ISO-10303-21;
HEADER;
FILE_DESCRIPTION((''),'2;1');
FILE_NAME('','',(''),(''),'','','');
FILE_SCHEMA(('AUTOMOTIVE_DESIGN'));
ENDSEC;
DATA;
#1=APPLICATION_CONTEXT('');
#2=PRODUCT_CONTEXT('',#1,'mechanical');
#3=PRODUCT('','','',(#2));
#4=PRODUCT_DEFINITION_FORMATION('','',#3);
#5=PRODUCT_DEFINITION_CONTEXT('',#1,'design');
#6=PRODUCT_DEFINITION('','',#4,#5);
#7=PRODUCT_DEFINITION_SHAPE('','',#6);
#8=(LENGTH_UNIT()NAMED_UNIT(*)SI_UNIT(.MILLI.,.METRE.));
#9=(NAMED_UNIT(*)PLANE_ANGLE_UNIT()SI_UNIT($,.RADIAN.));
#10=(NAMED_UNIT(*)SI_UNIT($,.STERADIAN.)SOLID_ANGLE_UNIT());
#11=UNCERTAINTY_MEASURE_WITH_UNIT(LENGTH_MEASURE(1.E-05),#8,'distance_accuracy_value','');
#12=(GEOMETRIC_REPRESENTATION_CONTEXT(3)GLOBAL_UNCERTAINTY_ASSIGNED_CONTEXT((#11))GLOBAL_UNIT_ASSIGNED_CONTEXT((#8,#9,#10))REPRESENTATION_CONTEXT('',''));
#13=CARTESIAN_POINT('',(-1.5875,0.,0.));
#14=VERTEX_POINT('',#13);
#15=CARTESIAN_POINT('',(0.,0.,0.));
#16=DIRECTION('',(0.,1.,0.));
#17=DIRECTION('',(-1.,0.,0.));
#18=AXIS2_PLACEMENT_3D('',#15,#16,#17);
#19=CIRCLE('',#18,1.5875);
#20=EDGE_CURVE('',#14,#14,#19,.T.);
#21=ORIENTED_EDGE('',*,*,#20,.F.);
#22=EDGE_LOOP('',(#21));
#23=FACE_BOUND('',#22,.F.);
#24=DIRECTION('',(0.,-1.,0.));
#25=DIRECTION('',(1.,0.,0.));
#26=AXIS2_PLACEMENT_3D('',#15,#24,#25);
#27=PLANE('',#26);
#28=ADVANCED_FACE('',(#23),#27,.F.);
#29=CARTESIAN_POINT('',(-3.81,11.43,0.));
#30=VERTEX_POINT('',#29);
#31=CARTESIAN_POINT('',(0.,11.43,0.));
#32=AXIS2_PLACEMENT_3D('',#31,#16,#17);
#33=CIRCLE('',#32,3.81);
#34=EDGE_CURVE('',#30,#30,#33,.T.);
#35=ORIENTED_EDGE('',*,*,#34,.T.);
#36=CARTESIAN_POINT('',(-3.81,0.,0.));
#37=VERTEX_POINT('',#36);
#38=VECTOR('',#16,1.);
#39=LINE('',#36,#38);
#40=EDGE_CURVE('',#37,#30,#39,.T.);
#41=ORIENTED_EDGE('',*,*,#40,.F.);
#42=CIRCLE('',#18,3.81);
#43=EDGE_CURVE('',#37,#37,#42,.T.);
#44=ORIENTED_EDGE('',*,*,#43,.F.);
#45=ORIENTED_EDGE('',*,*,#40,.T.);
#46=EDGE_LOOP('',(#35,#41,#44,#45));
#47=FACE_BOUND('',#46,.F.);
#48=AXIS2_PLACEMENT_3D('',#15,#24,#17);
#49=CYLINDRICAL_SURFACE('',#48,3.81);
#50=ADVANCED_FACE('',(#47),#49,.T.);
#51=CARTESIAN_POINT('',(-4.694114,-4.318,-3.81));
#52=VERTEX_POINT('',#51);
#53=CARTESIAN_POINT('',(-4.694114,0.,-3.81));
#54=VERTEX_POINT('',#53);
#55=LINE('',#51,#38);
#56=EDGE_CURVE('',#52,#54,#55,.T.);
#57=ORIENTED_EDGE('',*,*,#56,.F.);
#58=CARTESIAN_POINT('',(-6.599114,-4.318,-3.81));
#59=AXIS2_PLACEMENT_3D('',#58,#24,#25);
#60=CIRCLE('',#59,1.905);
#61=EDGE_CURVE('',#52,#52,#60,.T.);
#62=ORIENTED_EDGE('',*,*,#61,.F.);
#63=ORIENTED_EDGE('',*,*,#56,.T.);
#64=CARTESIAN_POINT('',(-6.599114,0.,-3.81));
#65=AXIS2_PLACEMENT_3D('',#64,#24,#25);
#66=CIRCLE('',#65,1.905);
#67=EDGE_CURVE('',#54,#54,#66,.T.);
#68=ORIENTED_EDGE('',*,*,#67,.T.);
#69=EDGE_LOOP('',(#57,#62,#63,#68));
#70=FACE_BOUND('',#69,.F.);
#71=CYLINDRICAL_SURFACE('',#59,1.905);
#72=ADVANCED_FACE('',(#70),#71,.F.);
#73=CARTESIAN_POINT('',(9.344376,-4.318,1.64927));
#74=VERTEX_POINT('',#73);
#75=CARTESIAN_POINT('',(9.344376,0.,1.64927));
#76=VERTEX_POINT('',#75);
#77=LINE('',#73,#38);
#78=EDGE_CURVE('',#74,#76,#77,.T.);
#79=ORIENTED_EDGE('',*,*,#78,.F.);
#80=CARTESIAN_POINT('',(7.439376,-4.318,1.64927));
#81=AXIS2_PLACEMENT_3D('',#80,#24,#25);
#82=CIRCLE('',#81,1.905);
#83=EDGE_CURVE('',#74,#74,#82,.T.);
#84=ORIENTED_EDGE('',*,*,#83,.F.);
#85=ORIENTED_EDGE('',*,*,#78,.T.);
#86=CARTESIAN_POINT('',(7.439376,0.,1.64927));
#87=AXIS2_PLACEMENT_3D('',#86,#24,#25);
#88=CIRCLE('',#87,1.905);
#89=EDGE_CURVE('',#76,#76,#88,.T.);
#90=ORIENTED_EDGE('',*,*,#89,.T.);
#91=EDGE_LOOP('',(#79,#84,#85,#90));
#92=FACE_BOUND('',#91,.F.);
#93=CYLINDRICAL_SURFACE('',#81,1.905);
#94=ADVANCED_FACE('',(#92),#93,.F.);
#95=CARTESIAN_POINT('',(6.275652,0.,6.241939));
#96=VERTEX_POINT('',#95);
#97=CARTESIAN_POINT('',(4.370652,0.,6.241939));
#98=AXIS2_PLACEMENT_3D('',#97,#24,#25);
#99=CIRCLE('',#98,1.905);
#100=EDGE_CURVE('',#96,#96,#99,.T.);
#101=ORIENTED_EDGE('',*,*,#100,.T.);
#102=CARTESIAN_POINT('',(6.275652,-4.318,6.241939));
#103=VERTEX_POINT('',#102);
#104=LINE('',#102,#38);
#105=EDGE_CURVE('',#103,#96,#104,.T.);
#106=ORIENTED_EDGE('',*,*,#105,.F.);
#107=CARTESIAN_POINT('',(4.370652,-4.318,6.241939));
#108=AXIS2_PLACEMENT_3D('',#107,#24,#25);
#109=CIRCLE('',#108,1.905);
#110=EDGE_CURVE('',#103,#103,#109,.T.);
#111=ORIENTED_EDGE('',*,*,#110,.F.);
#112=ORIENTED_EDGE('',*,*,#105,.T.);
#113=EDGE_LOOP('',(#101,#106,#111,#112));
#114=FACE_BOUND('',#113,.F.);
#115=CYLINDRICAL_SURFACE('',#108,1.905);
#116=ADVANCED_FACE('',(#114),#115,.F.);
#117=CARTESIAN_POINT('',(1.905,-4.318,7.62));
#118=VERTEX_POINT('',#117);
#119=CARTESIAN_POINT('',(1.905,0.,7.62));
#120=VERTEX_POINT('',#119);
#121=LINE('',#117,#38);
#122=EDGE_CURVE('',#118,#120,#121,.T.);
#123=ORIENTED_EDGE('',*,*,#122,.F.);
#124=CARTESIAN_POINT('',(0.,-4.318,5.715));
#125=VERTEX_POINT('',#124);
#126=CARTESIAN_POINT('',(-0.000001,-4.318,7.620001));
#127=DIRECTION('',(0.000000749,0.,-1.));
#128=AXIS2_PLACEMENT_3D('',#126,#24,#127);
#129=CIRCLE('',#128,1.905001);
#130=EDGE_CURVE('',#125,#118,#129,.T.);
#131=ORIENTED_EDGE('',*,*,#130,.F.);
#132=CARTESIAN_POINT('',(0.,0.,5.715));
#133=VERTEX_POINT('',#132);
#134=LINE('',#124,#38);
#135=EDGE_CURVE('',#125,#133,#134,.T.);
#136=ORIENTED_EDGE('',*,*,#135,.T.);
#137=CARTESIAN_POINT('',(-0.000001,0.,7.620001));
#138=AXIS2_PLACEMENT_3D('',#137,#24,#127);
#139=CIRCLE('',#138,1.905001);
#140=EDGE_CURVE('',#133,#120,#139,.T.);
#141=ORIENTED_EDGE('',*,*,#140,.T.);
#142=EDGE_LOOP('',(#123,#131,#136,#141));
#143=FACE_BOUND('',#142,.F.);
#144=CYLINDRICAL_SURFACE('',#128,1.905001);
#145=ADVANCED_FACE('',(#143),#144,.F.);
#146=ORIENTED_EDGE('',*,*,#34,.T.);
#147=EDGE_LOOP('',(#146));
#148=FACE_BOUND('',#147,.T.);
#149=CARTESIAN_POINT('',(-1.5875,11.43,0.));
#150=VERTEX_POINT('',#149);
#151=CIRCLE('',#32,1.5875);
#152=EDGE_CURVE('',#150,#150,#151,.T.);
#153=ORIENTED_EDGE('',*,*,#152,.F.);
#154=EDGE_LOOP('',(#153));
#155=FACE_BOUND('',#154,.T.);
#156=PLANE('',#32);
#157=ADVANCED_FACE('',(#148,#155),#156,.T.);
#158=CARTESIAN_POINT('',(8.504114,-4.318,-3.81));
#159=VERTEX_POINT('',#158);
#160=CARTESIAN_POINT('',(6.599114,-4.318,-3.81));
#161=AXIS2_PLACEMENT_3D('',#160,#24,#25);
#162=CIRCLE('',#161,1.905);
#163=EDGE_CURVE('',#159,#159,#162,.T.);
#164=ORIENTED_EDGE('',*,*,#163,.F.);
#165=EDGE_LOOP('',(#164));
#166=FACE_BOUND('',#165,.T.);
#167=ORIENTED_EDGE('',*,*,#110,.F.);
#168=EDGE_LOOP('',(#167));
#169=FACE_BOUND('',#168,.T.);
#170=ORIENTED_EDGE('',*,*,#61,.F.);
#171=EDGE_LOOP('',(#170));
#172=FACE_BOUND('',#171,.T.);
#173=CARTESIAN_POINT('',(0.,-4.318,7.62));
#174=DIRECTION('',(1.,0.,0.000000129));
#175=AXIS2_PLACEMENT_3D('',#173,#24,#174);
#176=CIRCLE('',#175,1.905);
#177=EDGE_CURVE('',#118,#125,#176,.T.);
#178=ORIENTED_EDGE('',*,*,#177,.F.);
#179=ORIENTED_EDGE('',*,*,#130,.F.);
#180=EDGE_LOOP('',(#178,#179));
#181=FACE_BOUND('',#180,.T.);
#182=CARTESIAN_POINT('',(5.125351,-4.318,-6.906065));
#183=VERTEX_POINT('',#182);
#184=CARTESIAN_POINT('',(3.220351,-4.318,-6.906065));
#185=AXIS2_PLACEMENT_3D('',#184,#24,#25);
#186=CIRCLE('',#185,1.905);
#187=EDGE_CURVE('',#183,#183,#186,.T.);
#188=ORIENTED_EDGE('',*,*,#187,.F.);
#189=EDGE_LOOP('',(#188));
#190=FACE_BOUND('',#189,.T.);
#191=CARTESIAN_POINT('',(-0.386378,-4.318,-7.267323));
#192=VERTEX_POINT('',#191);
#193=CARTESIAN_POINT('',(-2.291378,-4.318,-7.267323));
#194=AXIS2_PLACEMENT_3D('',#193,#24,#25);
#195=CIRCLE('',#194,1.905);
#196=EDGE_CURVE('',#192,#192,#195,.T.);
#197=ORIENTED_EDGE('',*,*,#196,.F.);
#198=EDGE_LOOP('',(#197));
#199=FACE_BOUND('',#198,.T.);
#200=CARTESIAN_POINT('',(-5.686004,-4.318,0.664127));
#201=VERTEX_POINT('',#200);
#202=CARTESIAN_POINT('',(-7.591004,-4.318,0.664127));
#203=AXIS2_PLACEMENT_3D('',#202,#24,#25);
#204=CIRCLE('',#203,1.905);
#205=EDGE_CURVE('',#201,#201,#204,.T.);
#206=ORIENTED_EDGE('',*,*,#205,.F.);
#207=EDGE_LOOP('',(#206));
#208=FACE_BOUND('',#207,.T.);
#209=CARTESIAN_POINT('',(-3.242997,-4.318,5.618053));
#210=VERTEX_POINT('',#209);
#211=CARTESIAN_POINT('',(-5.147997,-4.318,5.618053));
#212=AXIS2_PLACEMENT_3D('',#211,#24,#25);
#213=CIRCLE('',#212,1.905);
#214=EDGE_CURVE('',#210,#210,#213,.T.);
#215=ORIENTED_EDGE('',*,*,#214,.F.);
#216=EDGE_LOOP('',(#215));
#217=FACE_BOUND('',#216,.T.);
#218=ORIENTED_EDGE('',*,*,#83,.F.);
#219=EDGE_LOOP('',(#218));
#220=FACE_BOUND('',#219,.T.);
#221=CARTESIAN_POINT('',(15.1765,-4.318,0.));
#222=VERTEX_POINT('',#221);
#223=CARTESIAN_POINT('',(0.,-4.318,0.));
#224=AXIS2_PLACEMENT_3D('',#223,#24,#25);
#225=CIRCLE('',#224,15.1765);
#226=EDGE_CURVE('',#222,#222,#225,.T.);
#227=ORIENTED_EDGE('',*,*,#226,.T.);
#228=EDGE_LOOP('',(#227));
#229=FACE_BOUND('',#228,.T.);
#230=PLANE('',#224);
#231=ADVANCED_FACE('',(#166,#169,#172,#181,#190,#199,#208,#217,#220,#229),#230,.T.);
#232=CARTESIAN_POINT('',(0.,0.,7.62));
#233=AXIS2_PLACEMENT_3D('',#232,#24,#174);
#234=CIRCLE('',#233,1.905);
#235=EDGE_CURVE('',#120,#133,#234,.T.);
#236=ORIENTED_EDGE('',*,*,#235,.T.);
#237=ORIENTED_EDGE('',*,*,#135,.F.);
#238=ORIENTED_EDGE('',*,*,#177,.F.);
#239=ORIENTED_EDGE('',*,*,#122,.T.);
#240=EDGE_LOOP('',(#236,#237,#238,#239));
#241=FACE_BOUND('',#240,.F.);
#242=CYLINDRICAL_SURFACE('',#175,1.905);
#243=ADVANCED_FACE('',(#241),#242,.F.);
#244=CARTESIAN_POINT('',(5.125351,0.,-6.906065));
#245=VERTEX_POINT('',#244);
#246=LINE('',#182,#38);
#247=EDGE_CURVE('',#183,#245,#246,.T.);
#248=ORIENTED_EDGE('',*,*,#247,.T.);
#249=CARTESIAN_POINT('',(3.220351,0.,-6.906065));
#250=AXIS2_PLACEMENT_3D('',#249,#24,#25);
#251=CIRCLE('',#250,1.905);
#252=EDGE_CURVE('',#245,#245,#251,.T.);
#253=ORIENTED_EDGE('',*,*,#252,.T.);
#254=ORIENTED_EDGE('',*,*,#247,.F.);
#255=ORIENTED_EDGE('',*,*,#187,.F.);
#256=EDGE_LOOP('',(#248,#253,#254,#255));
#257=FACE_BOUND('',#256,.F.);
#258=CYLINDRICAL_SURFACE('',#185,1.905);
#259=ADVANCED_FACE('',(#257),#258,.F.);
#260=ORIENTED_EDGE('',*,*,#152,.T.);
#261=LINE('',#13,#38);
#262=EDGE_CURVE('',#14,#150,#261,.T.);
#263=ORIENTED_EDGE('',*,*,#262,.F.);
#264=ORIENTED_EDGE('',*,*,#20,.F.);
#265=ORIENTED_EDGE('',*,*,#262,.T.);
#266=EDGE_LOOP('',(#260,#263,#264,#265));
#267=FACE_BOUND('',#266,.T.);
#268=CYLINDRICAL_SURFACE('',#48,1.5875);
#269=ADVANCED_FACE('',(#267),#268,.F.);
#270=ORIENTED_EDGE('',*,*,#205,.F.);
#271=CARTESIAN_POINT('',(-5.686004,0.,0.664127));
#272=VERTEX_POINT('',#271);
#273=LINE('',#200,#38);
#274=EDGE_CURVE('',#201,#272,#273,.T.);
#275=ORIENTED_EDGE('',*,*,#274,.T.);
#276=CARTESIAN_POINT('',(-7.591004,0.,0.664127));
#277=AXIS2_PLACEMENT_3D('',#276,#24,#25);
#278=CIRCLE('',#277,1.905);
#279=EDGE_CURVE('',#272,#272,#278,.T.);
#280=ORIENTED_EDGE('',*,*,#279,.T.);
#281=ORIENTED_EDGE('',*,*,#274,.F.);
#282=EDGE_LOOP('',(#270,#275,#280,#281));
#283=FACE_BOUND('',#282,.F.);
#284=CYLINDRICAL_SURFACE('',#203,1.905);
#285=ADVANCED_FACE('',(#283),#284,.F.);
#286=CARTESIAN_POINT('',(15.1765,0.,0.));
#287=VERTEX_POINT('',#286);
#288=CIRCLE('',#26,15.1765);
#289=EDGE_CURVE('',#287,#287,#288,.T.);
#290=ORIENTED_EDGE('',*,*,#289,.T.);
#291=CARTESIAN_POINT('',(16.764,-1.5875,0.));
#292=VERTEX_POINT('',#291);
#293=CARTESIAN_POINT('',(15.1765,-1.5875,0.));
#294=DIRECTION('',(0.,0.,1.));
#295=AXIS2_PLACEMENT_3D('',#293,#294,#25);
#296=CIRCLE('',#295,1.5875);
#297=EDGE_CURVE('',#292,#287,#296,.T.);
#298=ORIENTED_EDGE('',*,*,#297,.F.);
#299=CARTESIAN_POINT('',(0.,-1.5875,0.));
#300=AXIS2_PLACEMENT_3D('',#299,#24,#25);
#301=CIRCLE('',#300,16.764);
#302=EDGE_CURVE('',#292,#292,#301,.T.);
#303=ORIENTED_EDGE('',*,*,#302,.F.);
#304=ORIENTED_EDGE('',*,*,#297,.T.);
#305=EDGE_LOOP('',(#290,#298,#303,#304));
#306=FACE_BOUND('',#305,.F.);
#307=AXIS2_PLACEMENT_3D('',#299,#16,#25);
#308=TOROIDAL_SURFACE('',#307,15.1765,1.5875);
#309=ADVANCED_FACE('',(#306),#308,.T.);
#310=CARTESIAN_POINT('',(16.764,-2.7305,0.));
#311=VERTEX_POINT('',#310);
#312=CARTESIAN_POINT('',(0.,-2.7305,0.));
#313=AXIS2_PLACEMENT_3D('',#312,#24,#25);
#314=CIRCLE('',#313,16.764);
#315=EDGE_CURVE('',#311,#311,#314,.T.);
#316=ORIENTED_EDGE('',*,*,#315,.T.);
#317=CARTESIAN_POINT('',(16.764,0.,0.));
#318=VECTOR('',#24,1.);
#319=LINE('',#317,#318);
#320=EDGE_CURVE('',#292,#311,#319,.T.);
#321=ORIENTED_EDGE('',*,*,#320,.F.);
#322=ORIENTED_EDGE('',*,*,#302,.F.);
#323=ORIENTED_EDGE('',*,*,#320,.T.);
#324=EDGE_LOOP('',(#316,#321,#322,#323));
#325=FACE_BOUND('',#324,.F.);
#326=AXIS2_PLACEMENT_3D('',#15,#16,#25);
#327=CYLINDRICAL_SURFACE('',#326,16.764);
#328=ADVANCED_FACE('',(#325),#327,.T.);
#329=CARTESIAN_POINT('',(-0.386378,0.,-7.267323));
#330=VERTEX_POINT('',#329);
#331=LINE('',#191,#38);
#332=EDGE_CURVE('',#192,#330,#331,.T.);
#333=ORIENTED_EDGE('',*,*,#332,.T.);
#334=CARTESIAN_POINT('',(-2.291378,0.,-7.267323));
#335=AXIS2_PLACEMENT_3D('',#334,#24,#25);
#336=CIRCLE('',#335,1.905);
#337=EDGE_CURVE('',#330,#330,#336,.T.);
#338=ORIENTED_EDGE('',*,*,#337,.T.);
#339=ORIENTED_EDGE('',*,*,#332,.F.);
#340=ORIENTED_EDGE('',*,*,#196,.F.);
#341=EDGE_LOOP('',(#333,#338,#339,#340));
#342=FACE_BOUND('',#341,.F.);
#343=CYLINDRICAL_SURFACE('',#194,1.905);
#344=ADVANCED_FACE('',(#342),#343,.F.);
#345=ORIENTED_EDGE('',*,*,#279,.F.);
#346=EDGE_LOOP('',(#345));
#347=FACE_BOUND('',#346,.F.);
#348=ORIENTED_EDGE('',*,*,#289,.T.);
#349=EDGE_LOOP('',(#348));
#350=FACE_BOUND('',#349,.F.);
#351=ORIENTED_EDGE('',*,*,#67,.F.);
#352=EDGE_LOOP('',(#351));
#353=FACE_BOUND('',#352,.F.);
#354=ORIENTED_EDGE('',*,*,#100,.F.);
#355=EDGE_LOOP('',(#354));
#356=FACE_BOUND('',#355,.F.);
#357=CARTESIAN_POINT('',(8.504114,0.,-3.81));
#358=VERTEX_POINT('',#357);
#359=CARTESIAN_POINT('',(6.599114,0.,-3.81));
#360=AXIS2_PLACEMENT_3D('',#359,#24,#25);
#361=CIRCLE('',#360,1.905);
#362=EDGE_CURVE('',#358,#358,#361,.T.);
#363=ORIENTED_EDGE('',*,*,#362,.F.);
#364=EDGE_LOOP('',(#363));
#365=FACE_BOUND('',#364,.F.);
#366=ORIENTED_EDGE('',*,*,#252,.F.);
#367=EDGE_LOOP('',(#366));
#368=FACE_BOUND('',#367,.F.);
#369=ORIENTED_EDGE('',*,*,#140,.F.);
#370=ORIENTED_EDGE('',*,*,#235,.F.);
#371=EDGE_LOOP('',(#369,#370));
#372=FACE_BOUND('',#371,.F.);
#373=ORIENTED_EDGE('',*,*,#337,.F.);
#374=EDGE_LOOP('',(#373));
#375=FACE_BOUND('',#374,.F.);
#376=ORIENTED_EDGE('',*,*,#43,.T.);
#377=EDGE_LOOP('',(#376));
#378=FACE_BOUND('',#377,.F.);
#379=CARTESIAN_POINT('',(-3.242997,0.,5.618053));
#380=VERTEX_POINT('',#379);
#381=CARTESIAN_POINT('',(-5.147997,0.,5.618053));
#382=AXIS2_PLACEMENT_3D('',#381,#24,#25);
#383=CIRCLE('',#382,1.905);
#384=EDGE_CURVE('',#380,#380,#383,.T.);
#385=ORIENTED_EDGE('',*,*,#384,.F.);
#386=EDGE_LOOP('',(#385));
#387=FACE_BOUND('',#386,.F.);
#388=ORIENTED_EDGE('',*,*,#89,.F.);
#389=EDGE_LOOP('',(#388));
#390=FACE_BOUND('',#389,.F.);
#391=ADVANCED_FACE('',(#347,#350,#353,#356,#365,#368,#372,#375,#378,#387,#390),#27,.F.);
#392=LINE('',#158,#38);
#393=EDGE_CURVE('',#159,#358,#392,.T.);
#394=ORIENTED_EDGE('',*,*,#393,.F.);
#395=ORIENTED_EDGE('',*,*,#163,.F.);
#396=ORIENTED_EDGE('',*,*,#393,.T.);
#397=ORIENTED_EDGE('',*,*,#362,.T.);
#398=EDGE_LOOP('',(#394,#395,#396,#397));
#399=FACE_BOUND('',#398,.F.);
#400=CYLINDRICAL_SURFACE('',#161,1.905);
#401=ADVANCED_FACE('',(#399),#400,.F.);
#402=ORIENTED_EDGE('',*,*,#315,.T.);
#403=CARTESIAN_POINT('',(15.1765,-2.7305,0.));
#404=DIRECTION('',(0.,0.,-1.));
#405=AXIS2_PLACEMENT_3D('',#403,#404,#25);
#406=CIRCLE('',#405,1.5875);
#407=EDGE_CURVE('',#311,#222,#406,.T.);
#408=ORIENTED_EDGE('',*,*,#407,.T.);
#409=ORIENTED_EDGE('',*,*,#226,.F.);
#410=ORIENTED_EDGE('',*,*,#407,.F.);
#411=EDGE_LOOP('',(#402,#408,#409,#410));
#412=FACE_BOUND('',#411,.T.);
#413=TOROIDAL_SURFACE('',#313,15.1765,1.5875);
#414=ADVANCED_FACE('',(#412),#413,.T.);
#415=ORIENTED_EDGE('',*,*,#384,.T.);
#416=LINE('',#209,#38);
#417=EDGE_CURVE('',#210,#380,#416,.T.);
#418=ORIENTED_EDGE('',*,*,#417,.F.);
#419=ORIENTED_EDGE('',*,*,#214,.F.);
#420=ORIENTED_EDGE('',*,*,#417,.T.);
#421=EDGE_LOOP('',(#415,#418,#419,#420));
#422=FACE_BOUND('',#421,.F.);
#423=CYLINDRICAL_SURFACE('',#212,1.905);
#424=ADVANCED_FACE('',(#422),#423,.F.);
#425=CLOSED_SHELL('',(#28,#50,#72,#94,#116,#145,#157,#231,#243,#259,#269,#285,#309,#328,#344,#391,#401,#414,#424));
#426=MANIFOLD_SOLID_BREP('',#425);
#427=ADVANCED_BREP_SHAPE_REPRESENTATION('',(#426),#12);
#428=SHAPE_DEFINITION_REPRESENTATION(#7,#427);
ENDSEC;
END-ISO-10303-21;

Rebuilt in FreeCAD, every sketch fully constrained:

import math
import FreeCAD as App
import Part
import Sketcher
Q = App.Units.Quantity


def edges_at(feature, points):
    """Names of the edges that pass closest to the given points."""
    edges = feature.Shape.Edges
    near = lambda p: min(range(len(edges)), key=lambda i: edges[i].distToShape(Part.Vertex(*p))[0])
    return sorted({f"Edge{near(p) + 1}" for p in points})

doc = App.newDocument("Part")
body = doc.addObject("PartDesign::Body", "Body")

sketch1 = body.newObject("Sketcher::SketchObject", "Sketch")
sketch1.AttachmentSupport = (doc.getObject("XZ_Plane"), [""])
sketch1.MapMode = "FlatFace"
sketch1.addGeometry(Part.Circle(App.Vector(0, 0, 0), App.Vector(0, 0, 1), 17), False)
sketch1.addConstraint([
    Sketcher.Constraint("Coincident", 0, 3, -1, 1),
    Sketcher.Constraint("Diameter", 0, Q("1.32 in")),
])
pad1 = body.newObject("PartDesign::Pad", "Pad")
pad1.Profile = sketch1
pad1.Length = Q("0.17 in")
doc.recompute()

fillet = body.newObject("PartDesign::Fillet", "Fillet")
fillet.Base = (pad1, edges_at(pad1, [(-16.764, 0, 0), (-16.764, -4.318, 0)]))
fillet.Radius = Q("0.0625 in")

sketch2 = body.newObject("Sketcher::SketchObject", "Sketch001")
sketch2.AttachmentSupport = (doc.getObject("XZ_Plane"), [""])
sketch2.MapMode = "FlatFace"
sketch2.AttachmentOffset = App.Placement(App.Vector(0, 0, 0.17 * 25.4), App.Rotation())
sketch2.addGeometry([
    Part.ArcOfCircle(Part.Circle(App.Vector(0, 7.6, 0), App.Vector(0, 0, 1), 1.9), math.radians(-90), math.radians(0)),
    Part.ArcOfCircle(Part.Circle(App.Vector(0, 7.6, 0), App.Vector(0, 0, 1), 1.9), math.radians(0), math.radians(270)),
    Part.Circle(App.Vector(4.4, 6.2, 0), App.Vector(0, 0, 1), 1.9),
    Part.Circle(App.Vector(7.4, 1.6, 0), App.Vector(0, 0, 1), 1.9),
    Part.Circle(App.Vector(6.6, -3.8, 0), App.Vector(0, 0, 1), 1.9),
    Part.Circle(App.Vector(3.2, -6.9, 0), App.Vector(0, 0, 1), 1.9),
    Part.Circle(App.Vector(-2.3, -7.3, 0), App.Vector(0, 0, 1), 1.9),
    Part.Circle(App.Vector(-6.6, -3.8, 0), App.Vector(0, 0, 1), 1.9),
    Part.Circle(App.Vector(-7.6, 0.7, 0), App.Vector(0, 0, 1), 1.9),
    Part.Circle(App.Vector(-5.1, 5.6, 0), App.Vector(0, 0, 1), 1.9),
], False)
sketch2.addConstraint([
    Sketcher.Constraint("Tangent", 0, 1, 1, 2),
    Sketcher.Constraint("Coincident", 1, 1, 0, 2),
    Sketcher.Constraint("Equal", 1, 2),
    Sketcher.Constraint("Equal", 2, 3),
    Sketcher.Constraint("Equal", 3, 4),
    Sketcher.Constraint("Equal", 4, 5),
    Sketcher.Constraint("Equal", 5, 6),
    Sketcher.Constraint("Equal", 6, 7),
    Sketcher.Constraint("Equal", 7, 8),
    Sketcher.Constraint("Equal", 8, 9),
    Sketcher.Constraint("Symmetric", 4, 3, 7, 3, -2),
    Sketcher.Constraint("PointOnObject", 0, 3, -2),
    Sketcher.Constraint("PointOnObject", 0, 1, -2),
    Sketcher.Constraint("Horizontal", 0, 3, 1, 1),
    Sketcher.Constraint("Diameter", 2, Q("0.15 in")),
    Sketcher.Constraint("DistanceY", -1, 1, 0, 3, Q("0.3000001 in")),
    Sketcher.Constraint("DistanceY", 4, 3, -1, 1, Q("0.15 in")),
    Sketcher.Constraint("DistanceX", 5, 3, 2, 3, 1.150301),
    Sketcher.Constraint("DistanceX", -1, 1, 2, 3, 4.370652),
    Sketcher.Constraint("DistanceY", -1, 1, 2, 3, 6.241939),
    Sketcher.Constraint("DistanceY", -1, 1, 3, 3, 1.64927),
    Sketcher.Constraint("DistanceX", 6, 3, 5, 3, 5.511729),
    Sketcher.Constraint("DistanceY", 6, 3, 5, 3, 0.361258),
    Sketcher.Constraint("DistanceX", 8, 3, 7, 3, 0.99189),
    Sketcher.Constraint("DistanceY", 6, 3, 8, 3, 7.93145),
    Sketcher.Constraint("DistanceY", 9, 3, 0, 3, 2.001948),
    Sketcher.Constraint("DistanceX", 9, 3, 2, 3, 9.518649),
    Sketcher.Constraint("DistanceX", -1, 1, 3, 3, 7.439376),
    Sketcher.Constraint("DistanceX", -1, 1, 4, 3, 6.599114),
    Sketcher.Constraint("DistanceY", 5, 3, -1, 1, 6.906065),
])
pocket1 = body.newObject("PartDesign::Pocket", "Pocket")
pocket1.Profile = sketch2
pocket1.Length = Q("1 in")

sketch3 = body.newObject("Sketcher::SketchObject", "Sketch002")
sketch3.AttachmentSupport = (doc.getObject("XZ_Plane"), [""])
sketch3.MapMode = "FlatFace"
sketch3.addGeometry(Part.Circle(App.Vector(0, 0, 0), App.Vector(0, 0, 1), 1.6), False)
sketch3.addConstraint([
    Sketcher.Constraint("Coincident", 0, 3, -1, 1),
    Sketcher.Constraint("Diameter", 0, Q("0.125 in")),
])
pocket2 = body.newObject("PartDesign::Pocket", "Pocket001")
pocket2.Profile = sketch3
pocket2.Length = Q("0.75 in")

sketch4 = body.newObject("Sketcher::SketchObject", "Sketch003")
sketch4.AttachmentSupport = (doc.getObject("XZ_Plane"), [""])
sketch4.MapMode = "FlatFace"
sketch4.addGeometry([
    Part.Circle(App.Vector(0, 0, 0), App.Vector(0, 0, 1), 3.8),
    Part.Circle(App.Vector(0, 0, 0), App.Vector(0, 0, 1), 1.6),
], False)
sketch4.addConstraint([
    Sketcher.Constraint("Coincident", 0, 3, -1, 1),
    Sketcher.Constraint("Coincident", 1, 3, -1, 1),
    Sketcher.Constraint("Diameter", 0, Q("0.3 in")),
    Sketcher.Constraint("Diameter", 1, Q("0.125 in")),
])
pad2 = body.newObject("PartDesign::Pad", "Pad001")
pad2.Profile = sketch4
pad2.Length = Q("0.45 in")
pad2.Reversed = True

doc.recompute()
